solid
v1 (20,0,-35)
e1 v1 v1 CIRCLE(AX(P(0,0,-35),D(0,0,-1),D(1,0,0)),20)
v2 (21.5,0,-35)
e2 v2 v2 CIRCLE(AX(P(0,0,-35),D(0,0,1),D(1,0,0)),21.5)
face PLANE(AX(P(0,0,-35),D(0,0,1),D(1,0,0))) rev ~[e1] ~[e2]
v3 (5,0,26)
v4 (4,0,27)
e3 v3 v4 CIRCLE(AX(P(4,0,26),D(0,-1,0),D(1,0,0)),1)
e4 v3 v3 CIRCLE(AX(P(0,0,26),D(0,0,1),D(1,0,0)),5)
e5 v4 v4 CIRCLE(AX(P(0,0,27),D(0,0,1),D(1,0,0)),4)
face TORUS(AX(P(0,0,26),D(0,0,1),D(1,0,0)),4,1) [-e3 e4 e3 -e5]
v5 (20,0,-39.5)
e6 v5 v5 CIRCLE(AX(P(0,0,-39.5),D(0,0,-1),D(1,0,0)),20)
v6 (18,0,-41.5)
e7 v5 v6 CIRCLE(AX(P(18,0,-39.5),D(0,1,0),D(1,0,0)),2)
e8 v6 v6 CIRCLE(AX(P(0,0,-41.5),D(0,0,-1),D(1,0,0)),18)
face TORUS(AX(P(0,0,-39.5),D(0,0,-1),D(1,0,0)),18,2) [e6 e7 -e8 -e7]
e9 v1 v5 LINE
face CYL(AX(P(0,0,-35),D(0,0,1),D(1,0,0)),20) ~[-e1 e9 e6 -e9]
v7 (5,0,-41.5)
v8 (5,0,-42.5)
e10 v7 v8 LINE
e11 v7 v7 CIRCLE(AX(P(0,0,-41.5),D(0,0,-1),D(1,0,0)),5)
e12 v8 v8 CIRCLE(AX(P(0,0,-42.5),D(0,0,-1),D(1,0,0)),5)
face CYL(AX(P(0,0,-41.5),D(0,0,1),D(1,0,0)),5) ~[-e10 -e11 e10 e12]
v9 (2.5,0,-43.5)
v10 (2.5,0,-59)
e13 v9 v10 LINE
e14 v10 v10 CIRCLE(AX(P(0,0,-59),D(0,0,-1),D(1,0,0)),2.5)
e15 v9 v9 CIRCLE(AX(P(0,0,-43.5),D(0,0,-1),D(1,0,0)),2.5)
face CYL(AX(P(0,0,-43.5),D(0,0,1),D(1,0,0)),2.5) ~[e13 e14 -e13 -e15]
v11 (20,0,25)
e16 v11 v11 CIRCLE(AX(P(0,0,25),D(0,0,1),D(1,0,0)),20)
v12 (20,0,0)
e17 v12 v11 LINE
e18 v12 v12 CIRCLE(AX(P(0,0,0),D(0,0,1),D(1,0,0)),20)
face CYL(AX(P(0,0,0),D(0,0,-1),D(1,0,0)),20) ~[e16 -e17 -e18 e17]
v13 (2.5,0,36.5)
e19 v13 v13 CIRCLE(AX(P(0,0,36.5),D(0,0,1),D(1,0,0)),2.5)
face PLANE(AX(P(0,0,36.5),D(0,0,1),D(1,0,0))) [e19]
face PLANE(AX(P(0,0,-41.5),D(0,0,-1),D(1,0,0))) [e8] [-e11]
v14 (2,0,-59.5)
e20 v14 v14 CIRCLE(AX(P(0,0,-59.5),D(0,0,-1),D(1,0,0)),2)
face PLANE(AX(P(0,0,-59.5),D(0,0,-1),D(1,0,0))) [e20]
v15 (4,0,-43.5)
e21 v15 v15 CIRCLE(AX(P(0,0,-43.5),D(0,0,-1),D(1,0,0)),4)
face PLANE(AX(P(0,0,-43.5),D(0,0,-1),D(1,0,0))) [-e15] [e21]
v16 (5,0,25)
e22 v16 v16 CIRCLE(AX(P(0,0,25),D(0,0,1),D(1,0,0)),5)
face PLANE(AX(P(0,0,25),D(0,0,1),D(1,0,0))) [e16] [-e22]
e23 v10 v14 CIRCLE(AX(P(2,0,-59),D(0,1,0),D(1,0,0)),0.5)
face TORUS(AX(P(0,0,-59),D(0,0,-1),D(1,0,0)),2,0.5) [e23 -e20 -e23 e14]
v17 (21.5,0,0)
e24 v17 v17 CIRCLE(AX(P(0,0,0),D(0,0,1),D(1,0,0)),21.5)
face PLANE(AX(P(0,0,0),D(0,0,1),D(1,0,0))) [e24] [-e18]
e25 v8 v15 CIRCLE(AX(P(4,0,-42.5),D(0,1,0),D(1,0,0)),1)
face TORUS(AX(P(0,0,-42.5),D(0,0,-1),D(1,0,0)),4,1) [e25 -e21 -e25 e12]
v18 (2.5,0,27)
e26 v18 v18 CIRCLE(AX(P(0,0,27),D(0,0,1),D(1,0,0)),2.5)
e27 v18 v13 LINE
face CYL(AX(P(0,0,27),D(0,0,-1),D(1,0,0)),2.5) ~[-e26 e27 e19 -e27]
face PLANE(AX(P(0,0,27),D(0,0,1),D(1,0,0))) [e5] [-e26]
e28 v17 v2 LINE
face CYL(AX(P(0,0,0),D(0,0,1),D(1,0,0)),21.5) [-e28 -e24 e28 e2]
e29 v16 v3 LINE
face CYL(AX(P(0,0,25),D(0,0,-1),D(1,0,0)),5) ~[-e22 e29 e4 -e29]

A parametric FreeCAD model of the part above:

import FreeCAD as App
import Part
import Sketcher


def edges_at(feature, points):
    """Names of the edges that pass closest to the given points."""
    edges = feature.Shape.Edges
    near = lambda p: min(range(len(edges)), key=lambda i: edges[i].distToShape(Part.Vertex(*p))[0])
    return sorted({f"Edge{near(p) + 1}" for p in points})

doc = App.newDocument("Part")
body = doc.addObject("PartDesign::Body", "Body")

# Sketch on XY plane
sketch1 = body.newObject("Sketcher::SketchObject", "Sketch")
sketch1.AttachmentSupport = (doc.getObject("XY_Plane"), [""])
sketch1.MapMode = "FlatFace"
sketch1.addGeometry(Part.Circle(App.Vector(0, 0, 0), App.Vector(0, 0, 1), 22), False)
sketch1.addConstraint([
    Sketcher.Constraint("Coincident", 0, 3, -1, 1),
    Sketcher.Constraint("Diameter", 0, 43.0),
])
pad1 = body.newObject("PartDesign::Pad", "Pad")
pad1.Profile = sketch1
pad1.Length = 35
pad1.Reversed = True

# Sketch on XY plane
sketch2 = body.newObject("Sketcher::SketchObject", "Sketch001")
sketch2.AttachmentSupport = (doc.getObject("XY_Plane"), [""])
sketch2.MapMode = "FlatFace"
sketch2.addGeometry(Part.Circle(App.Vector(0, 0, 0), App.Vector(0, 0, 1), 20), False)
sketch2.addConstraint([
    Sketcher.Constraint("Coincident", 0, 3, -1, 1),
    Sketcher.Constraint("Diameter", 0, 40.0),
])
pad2 = body.newObject("PartDesign::Pad", "Pad001")
pad2.Profile = sketch2
pad2.Length = 25

# Sketch on XY plane
sketch3 = body.newObject("Sketcher::SketchObject", "Sketch002")
sketch3.AttachmentSupport = (doc.getObject("XY_Plane"), [""])
sketch3.MapMode = "FlatFace"
sketch3.AttachmentOffset = App.Placement(App.Vector(0, 0, 25), App.Rotation())
sketch3.addGeometry(Part.Circle(App.Vector(0, 0, 0), App.Vector(0, 0, 1), 5), False)
sketch3.addConstraint([
    Sketcher.Constraint("Coincident", 0, 3, -1, 1),
    Sketcher.Constraint("Diameter", 0, 10.0),
])
pad3 = body.newObject("PartDesign::Pad", "Pad002")
pad3.Profile = sketch3
pad3.Length = 2

# Sketch on XY plane
sketch4 = body.newObject("Sketcher::SketchObject", "Sketch003")
sketch4.AttachmentSupport = (doc.getObject("XY_Plane"), [""])
sketch4.MapMode = "FlatFace"
sketch4.AttachmentOffset = App.Placement(App.Vector(0, 0, -35), App.Rotation())
sketch4.addGeometry(Part.Circle(App.Vector(0, 0, 0), App.Vector(0, 0, 1), 20), False)
sketch4.addConstraint([
    Sketcher.Constraint("Coincident", 0, 3, -1, 1),
    Sketcher.Constraint("Diameter", 0, 40.0),
])
pad4 = body.newObject("PartDesign::Pad", "Pad003")
pad4.Profile = sketch4
pad4.Length = 6.5
pad4.Reversed = True
doc.recompute()

fillet = body.newObject("PartDesign::Fillet", "Fillet")
fillet.Base = (pad4, edges_at(pad4, [(-20, 0, -41.5)]))
fillet.Radius = 2

# Sketch on XY plane
sketch5 = body.newObject("Sketcher::SketchObject", "Sketch004")
sketch5.AttachmentSupport = (doc.getObject("XY_Plane"), [""])
sketch5.MapMode = "FlatFace"
sketch5.AttachmentOffset = App.Placement(App.Vector(0, 0, -41.5), App.Rotation())
sketch5.addGeometry(Part.Circle(App.Vector(0, 0, 0), App.Vector(0, 0, 1), 5), False)
sketch5.addConstraint([
    Sketcher.Constraint("Coincident", 0, 3, -1, 1),
    Sketcher.Constraint("Diameter", 0, 10.0),
])
pad5 = body.newObject("PartDesign::Pad", "Pad004")
pad5.Profile = sketch5
pad5.Length = 2
pad5.Reversed = True
doc.recompute()

fillet2 = body.newObject("PartDesign::Fillet", "Fillet001")
fillet2.Base = (pad5, edges_at(pad5, [(-5, 0, -43.5)]))
fillet2.Radius = 1

# Sketch on XY plane
sketch6 = body.newObject("Sketcher::SketchObject", "Sketch005")
sketch6.AttachmentSupport = (doc.getObject("XY_Plane"), [""])
sketch6.MapMode = "FlatFace"
sketch6.AttachmentOffset = App.Placement(App.Vector(0, 0, -43.5), App.Rotation())
sketch6.addGeometry(Part.Circle(App.Vector(0, 0, 0), App.Vector(0, 0, 1), 2.5), False)
sketch6.addConstraint([
    Sketcher.Constraint("Coincident", 0, 3, -1, 1),
    Sketcher.Constraint("Diameter", 0, 5.0),
])
pad6 = body.newObject("PartDesign::Pad", "Pad005")
pad6.Profile = sketch6
pad6.Length = 16
pad6.Reversed = True
doc.recompute()

fillet3 = body.newObject("PartDesign::Fillet", "Fillet002")
fillet3.Base = (pad6, edges_at(pad6, [(-2.5, 0, -59.5)]))
fillet3.Radius = 0.5
doc.recompute()

fillet4 = body.newObject("PartDesign::Fillet", "Fillet003")
fillet4.Base = (fillet3, edges_at(fillet3, [(-5, 0, 27)]))
fillet4.Radius = 1

# Sketch on XY plane
sketch7 = body.newObject("Sketcher::SketchObject", "Sketch006")
sketch7.AttachmentSupport = (doc.getObject("XY_Plane"), [""])
sketch7.MapMode = "FlatFace"
sketch7.AttachmentOffset = App.Placement(App.Vector(0, 0, 27), App.Rotation())
sketch7.addGeometry(Part.Circle(App.Vector(0, 0, 0), App.Vector(0, 0, 1), 2.5), False)
sketch7.addConstraint([
    Sketcher.Constraint("Coincident", 0, 3, -1, 1),
    Sketcher.Constraint("Diameter", 0, 5.0),
])
pad7 = body.newObject("PartDesign::Pad", "Pad006")
pad7.Profile = sketch7
pad7.Length = 9.5

doc.recompute()
